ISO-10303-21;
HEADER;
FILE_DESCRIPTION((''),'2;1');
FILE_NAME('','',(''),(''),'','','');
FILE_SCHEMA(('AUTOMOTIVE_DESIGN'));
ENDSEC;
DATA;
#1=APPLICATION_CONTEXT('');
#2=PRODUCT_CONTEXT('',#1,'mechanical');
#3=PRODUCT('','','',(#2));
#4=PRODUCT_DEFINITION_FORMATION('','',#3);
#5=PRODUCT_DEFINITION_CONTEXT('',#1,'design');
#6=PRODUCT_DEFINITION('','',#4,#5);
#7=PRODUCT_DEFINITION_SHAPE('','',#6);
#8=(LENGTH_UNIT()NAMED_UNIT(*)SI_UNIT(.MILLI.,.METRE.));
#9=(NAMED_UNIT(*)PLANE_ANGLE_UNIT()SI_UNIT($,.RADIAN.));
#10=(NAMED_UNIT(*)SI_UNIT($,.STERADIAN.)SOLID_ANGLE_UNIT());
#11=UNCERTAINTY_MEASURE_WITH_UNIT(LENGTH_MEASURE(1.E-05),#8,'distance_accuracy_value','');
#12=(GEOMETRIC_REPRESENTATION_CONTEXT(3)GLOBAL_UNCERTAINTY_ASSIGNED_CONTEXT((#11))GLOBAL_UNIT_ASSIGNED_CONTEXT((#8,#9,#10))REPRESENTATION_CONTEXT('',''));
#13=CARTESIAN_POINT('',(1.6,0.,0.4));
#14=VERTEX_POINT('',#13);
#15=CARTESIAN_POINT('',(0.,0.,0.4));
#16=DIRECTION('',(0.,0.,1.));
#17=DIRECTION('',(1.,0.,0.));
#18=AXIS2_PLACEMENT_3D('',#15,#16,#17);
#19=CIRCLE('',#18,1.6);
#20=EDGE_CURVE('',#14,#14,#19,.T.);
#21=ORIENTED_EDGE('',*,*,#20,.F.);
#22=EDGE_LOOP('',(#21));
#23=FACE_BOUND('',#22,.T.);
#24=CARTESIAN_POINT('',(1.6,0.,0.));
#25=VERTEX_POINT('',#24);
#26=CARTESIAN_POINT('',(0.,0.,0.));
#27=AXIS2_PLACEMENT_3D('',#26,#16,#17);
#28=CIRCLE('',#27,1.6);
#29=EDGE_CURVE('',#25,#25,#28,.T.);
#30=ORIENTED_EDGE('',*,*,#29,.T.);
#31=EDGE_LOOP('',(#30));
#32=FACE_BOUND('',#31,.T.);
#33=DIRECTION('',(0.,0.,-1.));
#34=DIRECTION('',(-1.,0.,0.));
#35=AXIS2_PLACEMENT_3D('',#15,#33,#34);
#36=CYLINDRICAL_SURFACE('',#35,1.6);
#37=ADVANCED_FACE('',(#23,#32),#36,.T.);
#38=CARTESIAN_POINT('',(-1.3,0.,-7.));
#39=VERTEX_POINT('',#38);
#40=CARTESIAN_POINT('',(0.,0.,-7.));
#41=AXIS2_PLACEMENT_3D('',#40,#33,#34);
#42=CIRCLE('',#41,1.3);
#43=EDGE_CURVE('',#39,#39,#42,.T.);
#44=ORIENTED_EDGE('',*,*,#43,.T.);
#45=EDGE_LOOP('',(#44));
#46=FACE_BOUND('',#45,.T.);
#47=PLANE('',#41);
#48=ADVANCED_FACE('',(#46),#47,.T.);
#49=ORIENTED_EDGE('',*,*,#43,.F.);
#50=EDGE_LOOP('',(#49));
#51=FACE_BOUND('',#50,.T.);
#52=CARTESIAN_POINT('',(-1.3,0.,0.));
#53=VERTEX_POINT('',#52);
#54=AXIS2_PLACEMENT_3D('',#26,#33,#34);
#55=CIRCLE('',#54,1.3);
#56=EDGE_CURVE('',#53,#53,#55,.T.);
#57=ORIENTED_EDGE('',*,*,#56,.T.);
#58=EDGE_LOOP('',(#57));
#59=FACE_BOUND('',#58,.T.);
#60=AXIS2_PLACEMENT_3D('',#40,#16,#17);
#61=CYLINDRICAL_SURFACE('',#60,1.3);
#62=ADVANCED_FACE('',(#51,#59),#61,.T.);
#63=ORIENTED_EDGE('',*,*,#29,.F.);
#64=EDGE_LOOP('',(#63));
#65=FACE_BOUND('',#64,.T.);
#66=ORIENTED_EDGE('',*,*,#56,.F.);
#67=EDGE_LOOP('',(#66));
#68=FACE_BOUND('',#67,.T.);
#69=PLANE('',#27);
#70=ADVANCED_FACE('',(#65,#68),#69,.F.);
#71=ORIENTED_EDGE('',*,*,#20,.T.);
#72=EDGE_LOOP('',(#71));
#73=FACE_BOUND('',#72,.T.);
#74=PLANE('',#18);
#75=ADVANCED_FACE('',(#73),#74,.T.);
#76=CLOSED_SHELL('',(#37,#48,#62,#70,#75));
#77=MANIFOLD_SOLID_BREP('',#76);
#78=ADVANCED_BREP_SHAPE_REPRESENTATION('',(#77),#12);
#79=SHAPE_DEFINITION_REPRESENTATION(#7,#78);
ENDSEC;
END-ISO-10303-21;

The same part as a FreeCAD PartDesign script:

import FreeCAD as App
import Part
import Sketcher
from FreeCAD import Vector

doc = App.newDocument("Part")
body = doc.addObject("PartDesign::Body", "Body")

sketch1 = body.newObject("Sketcher::SketchObject", "Sketch")
sketch1.AttachmentSupport = (doc.getObject("XY_Plane"), [""])
sketch1.MapMode = "FlatFace"
sketch1.addGeometry(Part.Circle(Vector(0, 0, 0), Vector(0, 0, 1), 1.6), False)
sketch1.addConstraint([
    Sketcher.Constraint("Coincident", 0, 3, -1, 1),
    Sketcher.Constraint("Diameter", 0, 3.2),
])
pad1 = body.newObject("PartDesign::Pad", "Pad")
pad1.Profile = sketch1
pad1.Length = 0.4

sketch2 = body.newObject("Sketcher::SketchObject", "Sketch001")
sketch2.AttachmentSupport = (doc.getObject("XY_Plane"), [""])
sketch2.MapMode = "FlatFace"
sketch2.addGeometry(Part.Circle(Vector(0, 0, 0), Vector(0, 0, 1), 1.3), False)
sketch2.addConstraint([
    Sketcher.Constraint("Coincident", 0, 3, -1, 1),
    Sketcher.Constraint("Diameter", 0, 2.6),
])
pad2 = body.newObject("PartDesign::Pad", "Pad001")
pad2.Profile = sketch2
pad2.Length = 7
pad2.Reversed = True

doc.recompute()
